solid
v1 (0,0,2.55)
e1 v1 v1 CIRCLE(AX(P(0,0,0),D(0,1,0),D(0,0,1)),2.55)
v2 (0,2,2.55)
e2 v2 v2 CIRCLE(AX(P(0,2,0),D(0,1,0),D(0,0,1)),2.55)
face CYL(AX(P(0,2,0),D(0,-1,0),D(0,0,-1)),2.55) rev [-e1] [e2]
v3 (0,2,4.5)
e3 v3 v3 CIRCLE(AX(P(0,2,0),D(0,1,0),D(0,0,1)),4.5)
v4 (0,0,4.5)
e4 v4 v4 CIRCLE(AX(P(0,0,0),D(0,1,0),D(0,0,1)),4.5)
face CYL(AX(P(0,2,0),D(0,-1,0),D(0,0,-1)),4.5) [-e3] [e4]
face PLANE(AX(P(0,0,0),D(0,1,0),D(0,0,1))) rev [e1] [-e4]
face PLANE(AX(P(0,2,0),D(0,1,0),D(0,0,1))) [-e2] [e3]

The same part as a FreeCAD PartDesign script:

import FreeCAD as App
import Part
import Sketcher

doc = App.newDocument("Part")
body = doc.addObject("PartDesign::Body", "Body")

# Sketch on XZ plane
sketch1 = doc.addObject("Sketcher::SketchObject", "Sketch")
body.addObject(sketch1)
sketch1.AttachmentSupport = (doc.XZ_Plane, [""])
sketch1.MapMode = "FlatFace"
sketch1.addGeometry([
    Part.Circle(App.Vector(0, 0, 0), App.Vector(0, 0, 1), 4.5),
    Part.Circle(App.Vector(0, 0, 0), App.Vector(0, 0, 1), 2.55),
], False)
sketch1.addConstraint([
    Sketcher.Constraint("Coincident", 0, 3, -1, 1),
    Sketcher.Constraint("Coincident", 1, 3, -1, 1),
    Sketcher.Constraint("Diameter", 0, 9.0),
    Sketcher.Constraint("Diameter", 1, 5.1),
])
pad1 = doc.addObject("PartDesign::Pad", "Pad")
body.addObject(pad1)
pad1.Profile = sketch1
pad1.Length = 2
pad1.Reversed = True

doc.recompute()
